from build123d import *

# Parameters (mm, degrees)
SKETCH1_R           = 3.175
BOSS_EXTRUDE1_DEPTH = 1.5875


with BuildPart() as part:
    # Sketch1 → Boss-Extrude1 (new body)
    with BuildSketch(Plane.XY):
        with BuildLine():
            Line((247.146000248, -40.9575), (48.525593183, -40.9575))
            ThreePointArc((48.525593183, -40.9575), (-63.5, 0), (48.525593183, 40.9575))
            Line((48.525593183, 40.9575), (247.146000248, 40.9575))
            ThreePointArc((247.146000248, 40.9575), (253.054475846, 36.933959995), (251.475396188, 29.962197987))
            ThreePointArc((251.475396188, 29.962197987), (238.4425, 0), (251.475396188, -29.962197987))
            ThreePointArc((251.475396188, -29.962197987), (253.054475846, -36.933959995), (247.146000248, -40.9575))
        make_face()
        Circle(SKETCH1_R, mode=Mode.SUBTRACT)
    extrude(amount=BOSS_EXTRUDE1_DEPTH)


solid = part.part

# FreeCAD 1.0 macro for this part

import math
import FreeCAD as App
import Part
import Sketcher

V = App.Vector
Q = App.Units.Quantity

doc = App.newDocument("Part")
params = doc.addObject("Spreadsheet::Sheet", "Params")
for row, (alias, value) in enumerate([
    ("sketch1_radius", "2.5 in"),
    ("sketch1_diameter", "0.25 in"),
    ("sketch1_radius2", "0.25 in"),
    ("pad1_length", "0.0625 in"),
], start=1):
    params.set(f"A{row}", alias)
    params.set(f"B{row}", "=" + value)
    params.setAlias(f"B{row}", alias)

body = doc.addObject("PartDesign::Body", "Body")

sketch1 = body.newObject("Sketcher::SketchObject", "Sketch")
sketch1.AttachmentSupport = (doc.getObject("XY_Plane"), [""])
sketch1.MapMode = "FlatFace"
sketch1.addGeometry(Part.LineSegment(V(48.5, -41, 0), V(247.1, -41, 0)), False)
sketch1.addGeometry(Part.ArcOfCircle(Part.Circle(V(247.1, -34.6, 0), V(0, 0, 1), 6.3), math.radians(-90), math.radians(47)), False)
sketch1.addGeometry(Part.ArcOfCircle(Part.Circle(V(279.4, 0, 0), V(0, 0, 1), 41), math.radians(133), math.radians(227)), False)
sketch1.addGeometry(Part.ArcOfCircle(Part.Circle(V(247.1, 34.6, 0), V(0, 0, 1), 6.3), math.radians(-47), math.radians(90)), False)
sketch1.addGeometry(Part.LineSegment(V(247.1, 41, 0), V(48.5, 41, 0)), False)
sketch1.addGeometry(Part.ArcOfCircle(Part.Circle(V(0, 0, 0), V(0, 0, 1), 63.5), math.radians(40), math.radians(320)), False)
sketch1.addGeometry(Part.Circle(V(0, 0, 0), V(0, 0, 1), 3.2), False)
sketch1.addConstraint(Sketcher.Constraint("Tangent", 0, 2, 1, 1))
sketch1.addConstraint(Sketcher.Constraint("Tangent", 1, 2, 2, 2))
sketch1.addConstraint(Sketcher.Constraint("Tangent", 2, 1, 3, 1))
sketch1.addConstraint(Sketcher.Constraint("Tangent", 3, 2, 4, 1))
sketch1.addConstraint(Sketcher.Constraint("Coincident", 4, 2, 5, 1))
sketch1.addConstraint(Sketcher.Constraint("Coincident", 5, 2, 0, 1))
sketch1.addConstraint(Sketcher.Constraint("Horizontal", 0))
sketch1.addConstraint(Sketcher.Constraint("Horizontal", 4))
sketch1.addConstraint(Sketcher.Constraint("Coincident", 5, 3, -1, 1))
sketch1.addConstraint(Sketcher.Constraint("Coincident", 6, 3, -1, 1))
sketch1.addConstraint(Sketcher.Constraint("Equal", 1, 3))
sketch1.addConstraint(Sketcher.Constraint("Symmetric", 1, 3, 3, 3, -1))
sketch1.addConstraint(Sketcher.Constraint("Radius", 5, Q("2.5 in")))
sketch1.addConstraint(Sketcher.Constraint("Diameter", 6, Q("0.25 in")))
sketch1.addConstraint(Sketcher.Constraint("Radius", 1, Q("0.25 in")))
sketch1.addConstraint(Sketcher.Constraint("DistanceX", -1, 1, 2, 3, Q("11 in")))
sketch1.addConstraint(Sketcher.Constraint("Radius", 2, Q("1.6125 in")))
sketch1.addConstraint(Sketcher.Constraint("DistanceY", 1, 3, 3, 3, Q("2.725 in")))
sketch1.setExpression("Constraints[12]", "Params.sketch1_radius")
sketch1.setExpression("Constraints[13]", "Params.sketch1_diameter")
sketch1.setExpression("Constraints[14]", "Params.sketch1_radius2")
pad1 = body.newObject("PartDesign::Pad", "Pad")
pad1.Profile = sketch1
pad1.setExpression("Length", "Params.pad1_length")

doc.recompute()
